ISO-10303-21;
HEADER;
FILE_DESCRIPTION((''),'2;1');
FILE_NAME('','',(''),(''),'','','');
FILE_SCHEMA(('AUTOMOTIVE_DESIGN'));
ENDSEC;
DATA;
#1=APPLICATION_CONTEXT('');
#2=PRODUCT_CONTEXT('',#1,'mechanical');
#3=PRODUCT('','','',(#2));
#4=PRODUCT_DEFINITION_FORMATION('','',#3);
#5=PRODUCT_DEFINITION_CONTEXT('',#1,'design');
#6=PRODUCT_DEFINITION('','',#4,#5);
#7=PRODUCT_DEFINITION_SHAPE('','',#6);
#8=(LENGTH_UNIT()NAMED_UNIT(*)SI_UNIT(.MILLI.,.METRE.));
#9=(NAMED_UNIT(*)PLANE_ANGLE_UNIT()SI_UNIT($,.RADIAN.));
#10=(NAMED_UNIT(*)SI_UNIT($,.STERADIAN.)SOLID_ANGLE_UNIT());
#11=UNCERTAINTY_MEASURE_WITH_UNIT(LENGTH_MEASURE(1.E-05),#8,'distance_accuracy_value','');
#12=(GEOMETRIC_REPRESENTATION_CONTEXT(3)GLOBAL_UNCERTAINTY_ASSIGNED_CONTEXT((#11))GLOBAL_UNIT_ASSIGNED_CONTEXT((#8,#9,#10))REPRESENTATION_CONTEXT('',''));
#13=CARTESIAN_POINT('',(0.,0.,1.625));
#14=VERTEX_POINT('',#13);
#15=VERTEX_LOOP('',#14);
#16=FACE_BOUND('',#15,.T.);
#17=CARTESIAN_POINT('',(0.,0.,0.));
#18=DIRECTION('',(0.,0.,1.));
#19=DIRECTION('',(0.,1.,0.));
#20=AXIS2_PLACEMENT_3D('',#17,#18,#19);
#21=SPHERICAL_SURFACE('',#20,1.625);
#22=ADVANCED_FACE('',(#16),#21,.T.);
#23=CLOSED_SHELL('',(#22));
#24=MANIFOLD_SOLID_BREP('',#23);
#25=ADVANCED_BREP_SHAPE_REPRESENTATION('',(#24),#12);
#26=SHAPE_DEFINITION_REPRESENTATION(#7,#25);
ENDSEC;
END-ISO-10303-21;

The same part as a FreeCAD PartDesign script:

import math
import FreeCAD as App
import Part
import Sketcher

doc = App.newDocument("Part")
params = doc.addObject("Spreadsheet::Sheet", "Params")
for row, (alias, value) in enumerate([
    ("revolution_angle", "360 deg"),
], start=1):
    params.set(f"A{row}", alias)
    params.set(f"B{row}", "=" + value)
    params.setAlias(f"B{row}", alias)

body = doc.addObject("PartDesign::Body", "Body")

sketch1 = doc.addObject("Sketcher::SketchObject", "Sketch")
body.addObject(sketch1)
sketch1.AttachmentSupport = (doc.YZ_Plane, [""])
sketch1.MapMode = "FlatFace"
sketch1.addGeometry([
    Part.LineSegment(App.Vector(0, 1.6, 0), App.Vector(0, -1.6, 0)),
    Part.ArcOfCircle(Part.Circle(App.Vector(0, 0, 0), App.Vector(0, 0, 1), 1.6), math.radians(-90), math.radians(90)),
], False)
sketch1.addConstraint([
    Sketcher.Constraint("Coincident", 0, 1, 1, 2),
    Sketcher.Constraint("Coincident", 1, 1, 0, 2),
    Sketcher.Constraint("Vertical", 0),
    Sketcher.Constraint("Coincident", 1, 3, -1, 1),
    Sketcher.Constraint("PointOnObject", 0, 1, -2),
    Sketcher.Constraint("Radius", 1, 1.625),
])
revolution = doc.addObject("PartDesign::Revolution", "Revolution")
body.addObject(revolution)
revolution.Profile = sketch1
revolution.ReferenceAxis = (sketch1, ["V_Axis"])
revolution.setExpression("Angle", "Params.revolution_angle")

doc.recompute()
